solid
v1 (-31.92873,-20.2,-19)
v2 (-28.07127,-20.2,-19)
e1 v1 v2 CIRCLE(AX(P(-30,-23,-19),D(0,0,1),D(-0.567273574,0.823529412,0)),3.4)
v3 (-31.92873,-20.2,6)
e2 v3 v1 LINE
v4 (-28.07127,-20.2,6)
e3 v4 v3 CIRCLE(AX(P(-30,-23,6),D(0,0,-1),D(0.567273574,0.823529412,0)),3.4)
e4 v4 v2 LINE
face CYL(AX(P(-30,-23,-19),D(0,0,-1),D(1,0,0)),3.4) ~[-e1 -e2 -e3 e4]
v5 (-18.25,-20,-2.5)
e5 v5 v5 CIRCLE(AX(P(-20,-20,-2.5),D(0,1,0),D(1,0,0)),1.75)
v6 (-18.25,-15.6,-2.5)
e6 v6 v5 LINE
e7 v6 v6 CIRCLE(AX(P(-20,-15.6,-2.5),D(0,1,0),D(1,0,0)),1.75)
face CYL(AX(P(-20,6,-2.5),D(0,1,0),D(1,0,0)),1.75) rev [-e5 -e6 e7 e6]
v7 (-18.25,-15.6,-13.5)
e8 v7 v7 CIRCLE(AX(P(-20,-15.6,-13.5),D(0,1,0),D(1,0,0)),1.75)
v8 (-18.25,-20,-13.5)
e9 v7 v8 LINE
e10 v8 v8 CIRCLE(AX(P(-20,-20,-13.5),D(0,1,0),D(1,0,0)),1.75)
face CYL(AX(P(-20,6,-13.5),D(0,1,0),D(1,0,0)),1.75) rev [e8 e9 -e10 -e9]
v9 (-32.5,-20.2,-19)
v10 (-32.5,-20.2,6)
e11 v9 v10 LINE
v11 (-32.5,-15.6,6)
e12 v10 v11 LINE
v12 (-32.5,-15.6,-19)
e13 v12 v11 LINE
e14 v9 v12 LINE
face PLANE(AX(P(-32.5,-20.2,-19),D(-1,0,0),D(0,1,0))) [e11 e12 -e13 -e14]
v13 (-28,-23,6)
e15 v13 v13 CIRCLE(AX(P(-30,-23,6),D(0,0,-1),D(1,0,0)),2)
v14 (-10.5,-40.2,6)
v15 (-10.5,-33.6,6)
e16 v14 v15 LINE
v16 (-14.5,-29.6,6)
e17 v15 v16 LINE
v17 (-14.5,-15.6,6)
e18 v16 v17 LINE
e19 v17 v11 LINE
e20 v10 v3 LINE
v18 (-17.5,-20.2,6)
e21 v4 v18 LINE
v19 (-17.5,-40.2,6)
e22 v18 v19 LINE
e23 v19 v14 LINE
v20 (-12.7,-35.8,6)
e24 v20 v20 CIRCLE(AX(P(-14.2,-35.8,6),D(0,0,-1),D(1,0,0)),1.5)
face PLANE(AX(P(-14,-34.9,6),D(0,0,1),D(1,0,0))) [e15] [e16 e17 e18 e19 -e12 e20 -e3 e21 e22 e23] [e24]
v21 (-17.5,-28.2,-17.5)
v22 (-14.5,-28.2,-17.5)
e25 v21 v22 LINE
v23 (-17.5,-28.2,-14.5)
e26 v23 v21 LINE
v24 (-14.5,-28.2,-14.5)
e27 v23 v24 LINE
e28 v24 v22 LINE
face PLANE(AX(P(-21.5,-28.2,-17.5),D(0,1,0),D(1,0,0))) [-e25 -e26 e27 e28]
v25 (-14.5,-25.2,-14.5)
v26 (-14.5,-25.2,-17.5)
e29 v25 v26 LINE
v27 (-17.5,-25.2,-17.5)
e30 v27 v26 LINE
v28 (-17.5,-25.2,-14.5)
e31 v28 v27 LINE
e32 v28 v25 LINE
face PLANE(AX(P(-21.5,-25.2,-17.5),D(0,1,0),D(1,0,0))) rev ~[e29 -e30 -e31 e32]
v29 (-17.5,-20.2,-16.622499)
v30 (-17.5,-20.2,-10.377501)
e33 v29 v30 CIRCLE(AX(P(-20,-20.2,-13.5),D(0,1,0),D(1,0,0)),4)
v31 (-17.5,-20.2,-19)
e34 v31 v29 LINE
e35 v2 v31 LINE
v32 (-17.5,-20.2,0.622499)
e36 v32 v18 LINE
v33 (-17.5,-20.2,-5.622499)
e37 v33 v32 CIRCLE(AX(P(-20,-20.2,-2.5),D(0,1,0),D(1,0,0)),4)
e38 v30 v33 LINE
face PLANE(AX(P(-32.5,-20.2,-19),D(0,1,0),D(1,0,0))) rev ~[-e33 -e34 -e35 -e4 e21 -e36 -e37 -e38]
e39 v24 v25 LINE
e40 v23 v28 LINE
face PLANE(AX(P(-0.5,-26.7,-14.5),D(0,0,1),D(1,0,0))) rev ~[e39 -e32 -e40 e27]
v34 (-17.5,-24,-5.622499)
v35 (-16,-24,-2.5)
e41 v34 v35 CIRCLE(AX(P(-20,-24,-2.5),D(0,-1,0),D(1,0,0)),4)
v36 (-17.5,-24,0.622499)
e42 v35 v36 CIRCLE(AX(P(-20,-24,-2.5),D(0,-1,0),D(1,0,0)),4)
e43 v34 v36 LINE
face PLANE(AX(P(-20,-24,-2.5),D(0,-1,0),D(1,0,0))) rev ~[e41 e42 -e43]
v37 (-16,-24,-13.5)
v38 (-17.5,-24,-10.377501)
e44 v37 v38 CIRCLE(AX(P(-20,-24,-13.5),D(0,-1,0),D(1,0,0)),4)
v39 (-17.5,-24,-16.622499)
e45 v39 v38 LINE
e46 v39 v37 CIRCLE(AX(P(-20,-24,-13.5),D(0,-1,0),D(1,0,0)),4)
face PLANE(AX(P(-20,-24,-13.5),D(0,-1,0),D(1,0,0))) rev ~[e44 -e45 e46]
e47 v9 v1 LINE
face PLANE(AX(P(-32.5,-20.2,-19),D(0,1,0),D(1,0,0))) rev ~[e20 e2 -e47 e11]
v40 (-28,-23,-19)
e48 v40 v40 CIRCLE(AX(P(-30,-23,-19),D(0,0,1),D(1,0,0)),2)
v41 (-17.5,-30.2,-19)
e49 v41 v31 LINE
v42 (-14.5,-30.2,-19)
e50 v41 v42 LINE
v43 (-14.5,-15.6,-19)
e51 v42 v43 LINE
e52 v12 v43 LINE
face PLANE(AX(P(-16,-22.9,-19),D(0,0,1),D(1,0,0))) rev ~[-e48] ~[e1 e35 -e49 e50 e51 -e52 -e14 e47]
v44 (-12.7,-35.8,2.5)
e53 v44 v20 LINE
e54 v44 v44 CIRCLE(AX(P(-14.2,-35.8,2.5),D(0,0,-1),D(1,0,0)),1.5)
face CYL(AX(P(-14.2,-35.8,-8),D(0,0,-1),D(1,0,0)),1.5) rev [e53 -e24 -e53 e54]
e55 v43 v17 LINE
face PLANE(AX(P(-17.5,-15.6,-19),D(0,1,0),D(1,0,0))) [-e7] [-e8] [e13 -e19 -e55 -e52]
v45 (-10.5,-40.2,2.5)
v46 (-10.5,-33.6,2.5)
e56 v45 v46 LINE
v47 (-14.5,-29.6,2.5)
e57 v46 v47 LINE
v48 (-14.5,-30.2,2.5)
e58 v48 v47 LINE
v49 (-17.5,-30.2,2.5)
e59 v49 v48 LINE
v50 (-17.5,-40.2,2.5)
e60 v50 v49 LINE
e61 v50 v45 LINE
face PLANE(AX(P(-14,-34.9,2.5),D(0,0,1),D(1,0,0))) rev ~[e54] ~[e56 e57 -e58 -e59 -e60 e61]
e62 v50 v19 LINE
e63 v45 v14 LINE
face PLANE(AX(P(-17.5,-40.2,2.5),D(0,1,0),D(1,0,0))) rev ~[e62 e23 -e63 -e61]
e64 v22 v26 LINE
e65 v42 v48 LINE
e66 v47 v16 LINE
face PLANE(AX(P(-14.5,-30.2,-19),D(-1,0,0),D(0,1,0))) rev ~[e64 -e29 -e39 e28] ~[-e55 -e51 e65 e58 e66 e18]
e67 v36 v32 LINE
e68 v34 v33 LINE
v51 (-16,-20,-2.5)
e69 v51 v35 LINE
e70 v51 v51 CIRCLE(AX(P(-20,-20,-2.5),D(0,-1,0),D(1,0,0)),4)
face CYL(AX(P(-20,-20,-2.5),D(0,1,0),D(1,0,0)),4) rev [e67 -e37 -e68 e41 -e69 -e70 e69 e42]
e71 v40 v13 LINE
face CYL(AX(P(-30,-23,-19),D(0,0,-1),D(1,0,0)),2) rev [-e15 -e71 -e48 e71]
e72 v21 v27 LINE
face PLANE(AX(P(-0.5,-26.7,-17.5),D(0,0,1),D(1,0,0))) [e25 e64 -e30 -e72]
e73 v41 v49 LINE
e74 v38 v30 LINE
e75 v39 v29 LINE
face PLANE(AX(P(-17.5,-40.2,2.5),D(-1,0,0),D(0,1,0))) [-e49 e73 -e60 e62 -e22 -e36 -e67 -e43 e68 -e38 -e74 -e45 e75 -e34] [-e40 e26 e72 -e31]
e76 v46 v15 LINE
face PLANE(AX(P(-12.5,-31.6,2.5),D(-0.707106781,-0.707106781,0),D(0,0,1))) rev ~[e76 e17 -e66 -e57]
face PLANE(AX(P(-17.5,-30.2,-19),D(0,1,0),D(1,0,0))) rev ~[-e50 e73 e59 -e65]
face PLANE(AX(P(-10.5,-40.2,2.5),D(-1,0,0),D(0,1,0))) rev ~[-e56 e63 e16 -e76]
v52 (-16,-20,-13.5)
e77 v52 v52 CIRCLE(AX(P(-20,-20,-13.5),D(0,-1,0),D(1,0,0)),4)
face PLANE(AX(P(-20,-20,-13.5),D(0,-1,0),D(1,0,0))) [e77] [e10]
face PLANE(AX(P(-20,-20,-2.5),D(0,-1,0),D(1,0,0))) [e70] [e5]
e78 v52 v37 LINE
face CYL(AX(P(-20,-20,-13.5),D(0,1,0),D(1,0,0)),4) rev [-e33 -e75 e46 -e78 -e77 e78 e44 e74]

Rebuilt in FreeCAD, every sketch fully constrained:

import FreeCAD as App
import Part
import Sketcher
from FreeCAD import Vector
Q = App.Units.Quantity


def edges_at(feature, points):
    """Names of the edges that pass closest to the given points."""
    edges = feature.Shape.Edges
    near = lambda p: min(range(len(edges)), key=lambda i: edges[i].distToShape(Part.Vertex(*p))[0])
    return sorted({f"Edge{near(p) + 1}" for p in points})


def add_polygon(sketch, points):
    """Adds a closed chain of lines whose ends are joined by coincident constraints."""
    first, n = sketch.GeometryCount, len(points)
    for a, b in zip(points, points[1:] + points[:1]):
        sketch.addGeometry(Part.LineSegment(App.Vector(*a, 0), App.Vector(*b, 0)), False)
    for i in range(n):
        sketch.addConstraint(Sketcher.Constraint("Coincident", first + i, 2, first + (i + 1) % n, 1))

doc = App.newDocument("Part")
body = doc.addObject("PartDesign::Body", "Body")

# Sketch on XY plane
sketch1 = body.newObject("Sketcher::SketchObject", "Sketch")
sketch1.AttachmentSupport = (doc.getObject("XY_Plane"), [""])
sketch1.MapMode = "FlatFace"
sketch1.addGeometry(Part.Circle(Vector(0, 0, 0), Vector(0, 0, 1), 1.8), False)
sketch1.addConstraint(Sketcher.Constraint("Coincident", 0, 3, -1, 1))
sketch1.addConstraint(Sketcher.Constraint("Diameter", 0, Q("3.5 mm")))
pad1 = body.newObject("PartDesign::Pad", "Pad")
pad1.Profile = sketch1
pad1.Length = 44
body2 = doc.addObject("PartDesign::Body", "Body001")
doc.recompute()

body.Placement = App.Placement(Vector(0, 0, 0), App.Rotation(Vector(1, 0, 0), 90))
boolean = body2.newObject("PartDesign::Boolean", "Boolean")
boolean.Type = "Fuse"
boolean.addObjects([body])
body3 = doc.addObject("PartDesign::Body", "Body002")
doc.recompute()

body2.Placement = App.Placement(Vector(-20, 6, -13.5), App.Rotation(Vector(0, 0, 1), 0))
boolean2 = body3.newObject("PartDesign::Boolean", "Boolean001")
boolean2.Type = "Fuse"
boolean2.addObjects([body2])
body4 = doc.addObject("PartDesign::Body", "Body003")

# Sketch on XY plane
sketch2 = body4.newObject("Sketcher::SketchObject", "Sketch001")
sketch2.AttachmentSupport = (doc.getObject("XY_Plane003"), [""])
sketch2.MapMode = "FlatFace"
sketch2.AttachmentOffset = App.Placement(Vector(0, 0, -19), App.Rotation())
sketch2.addGeometry(Part.Circle(Vector(-30, -23, 0), Vector(0, 0, 1), 2), False)
sketch2.addConstraint(Sketcher.Constraint("Diameter", 0, Q("4 mm")))
sketch2.addConstraint(Sketcher.Constraint("DistanceX", 0, 3, -1, 1, Q("30 mm")))
sketch2.addConstraint(Sketcher.Constraint("DistanceY", 0, 3, -1, 1, Q("23 mm")))
pad2 = body4.newObject("PartDesign::Pad", "Pad001")
pad2.Profile = sketch2
pad2.Length = 42
body5 = doc.addObject("PartDesign::Body", "Body004")

# Sketch on XY plane
sketch3 = body5.newObject("Sketcher::SketchObject", "Sketch002")
sketch3.AttachmentSupport = (doc.getObject("XY_Plane004"), [""])
sketch3.MapMode = "FlatFace"
sketch3.AttachmentOffset = App.Placement(Vector(0, 0, -8), App.Rotation())
sketch3.addGeometry(Part.Circle(Vector(-14.2, -35.8, 0), Vector(0, 0, 1), 1.5), False)
sketch3.addConstraint(Sketcher.Constraint("Diameter", 0, Q("3 mm")))
sketch3.addConstraint(Sketcher.Constraint("DistanceX", 0, 3, -1, 1, Q("14.2 mm")))
sketch3.addConstraint(Sketcher.Constraint("DistanceY", 0, 3, -1, 1, Q("35.8 mm")))
pad3 = body5.newObject("PartDesign::Pad", "Pad002")
pad3.Profile = sketch3
pad3.Length = 42
body6 = doc.addObject("PartDesign::Body", "Body005")

# Sketch on XY plane
sketch4 = body6.newObject("Sketcher::SketchObject", "Sketch003")
sketch4.AttachmentSupport = (doc.getObject("XY_Plane005"), [""])
sketch4.MapMode = "FlatFace"
sketch4.addGeometry(Part.Circle(Vector(0, 0, 0), Vector(0, 0, 1), 4), False)
sketch4.addConstraint(Sketcher.Constraint("Coincident", 0, 3, -1, 1))
sketch4.addConstraint(Sketcher.Constraint("Diameter", 0, Q("8 mm")))
pad4 = body6.newObject("PartDesign::Pad", "Pad003")
pad4.Profile = sketch4
pad4.Length = 4
body7 = doc.addObject("PartDesign::Body", "Body006")
doc.recompute()

body6.Placement = App.Placement(Vector(0, 0, 0), App.Rotation(Vector(1, 0, 0), 90))
boolean3 = body7.newObject("PartDesign::Boolean", "Boolean002")
boolean3.Type = "Fuse"
boolean3.addObjects([body6])
body8 = doc.addObject("PartDesign::Body", "Body007")
doc.recompute()

body7.Placement = App.Placement(Vector(-20, -20, -2.5), App.Rotation(Vector(0, 0, 1), 0))
boolean4 = body8.newObject("PartDesign::Boolean", "Boolean003")
boolean4.Type = "Fuse"
boolean4.addObjects([body7])
body9 = doc.addObject("PartDesign::Body", "Body008")

# Sketch on XY plane
sketch5 = body9.newObject("Sketcher::SketchObject", "Sketch004")
sketch5.AttachmentSupport = (doc.getObject("XY_Plane008"), [""])
sketch5.MapMode = "FlatFace"
sketch5.addGeometry(Part.Circle(Vector(0, 0, 0), Vector(0, 0, 1), 4), False)
sketch5.addConstraint(Sketcher.Constraint("Coincident", 0, 3, -1, 1))
sketch5.addConstraint(Sketcher.Constraint("Diameter", 0, Q("8 mm")))
pad5 = body9.newObject("PartDesign::Pad", "Pad004")
pad5.Profile = sketch5
pad5.Length = 4
body10 = doc.addObject("PartDesign::Body", "Body009")
doc.recompute()

body9.Placement = App.Placement(Vector(0, 0, 0), App.Rotation(Vector(1, 0, 0), 90))
boolean5 = body10.newObject("PartDesign::Boolean", "Boolean004")
boolean5.Type = "Fuse"
boolean5.addObjects([body9])
body11 = doc.addObject("PartDesign::Body", "Body010")
doc.recompute()

body10.Placement = App.Placement(Vector(-20, -20, -13.5), App.Rotation(Vector(0, 0, 1), 0))
boolean6 = body11.newObject("PartDesign::Boolean", "Boolean005")
boolean6.Type = "Fuse"
boolean6.addObjects([body10])
body12 = doc.addObject("PartDesign::Body", "Body011")

# Sketch on XY plane
sketch6 = body12.newObject("Sketcher::SketchObject", "Sketch005")
sketch6.AttachmentSupport = (doc.getObject("XY_Plane011"), [""])
sketch6.MapMode = "FlatFace"
sketch6.AttachmentOffset = App.Placement(Vector(0, 0, -17.5), App.Rotation())
add_polygon(sketch6, [(-21.5, -25.2), (-21.5, -28.2), (20.5, -28.2), (20.5, -25.2)])  # lines 0-3
sketch6.addConstraint(Sketcher.Constraint("Vertical", 0))
sketch6.addConstraint(Sketcher.Constraint("Horizontal", 1))
sketch6.addConstraint(Sketcher.Constraint("Vertical", 2))
sketch6.addConstraint(Sketcher.Constraint("Horizontal", 3))
sketch6.addConstraint(Sketcher.Constraint("DistanceX", 1, 1, 1, 2, Q("42 mm")))
sketch6.addConstraint(Sketcher.Constraint("DistanceY", 0, 2, 0, 1, Q("3 mm")))
sketch6.addConstraint(Sketcher.Constraint("DistanceX", 0, 2, -1, 1, Q("21.5 mm")))
sketch6.addConstraint(Sketcher.Constraint("DistanceY", 0, 2, -1, 1, Q("28.2 mm")))
pad6 = body12.newObject("PartDesign::Pad", "Pad005")
pad6.Profile = sketch6
pad6.Length = 3
body13 = doc.addObject("PartDesign::Body", "Body012")

# Sketch on XY plane
sketch7 = body13.newObject("Sketcher::SketchObject", "Sketch006")
sketch7.AttachmentSupport = (doc.getObject("XY_Plane012"), [""])
sketch7.MapMode = "FlatFace"
sketch7.addGeometry(Part.Circle(Vector(0, 0, 0), Vector(0, 0, 1), 1.8), False)
sketch7.addConstraint(Sketcher.Constraint("Coincident", 0, 3, -1, 1))
sketch7.addConstraint(Sketcher.Constraint("Diameter", 0, Q("3.5 mm")))
pad7 = body13.newObject("PartDesign::Pad", "Pad006")
pad7.Profile = sketch7
pad7.Length = 44
body14 = doc.addObject("PartDesign::Body", "Body013")
doc.recompute()

body13.Placement = App.Placement(Vector(0, 0, 0), App.Rotation(Vector(1, 0, 0), 90))
boolean7 = body14.newObject("PartDesign::Boolean", "Boolean006")
boolean7.Type = "Fuse"
boolean7.addObjects([body13])
body15 = doc.addObject("PartDesign::Body", "Body014")
body15.AllowCompound = True
doc.recompute()

body14.Placement = App.Placement(Vector(-20, 6, -2.5), App.Rotation(Vector(0, 0, 1), 0))
boolean8 = body15.newObject("PartDesign::Boolean", "Boolean007")
boolean8.Type = "Fuse"
boolean8.addObjects([body14])
doc.recompute()

boolean9 = body15.newObject("PartDesign::Boolean", "Boolean008")
boolean9.Type = "Fuse"
boolean9.addObjects([body3])
doc.recompute()

boolean10 = body15.newObject("PartDesign::Boolean", "Boolean009")
boolean10.Type = "Fuse"
boolean10.addObjects([body4])
doc.recompute()

boolean11 = body15.newObject("PartDesign::Boolean", "Boolean010")
boolean11.Type = "Fuse"
boolean11.addObjects([body5])
doc.recompute()

boolean12 = body15.newObject("PartDesign::Boolean", "Boolean011")
boolean12.Type = "Fuse"
boolean12.addObjects([body8])
doc.recompute()

boolean13 = body15.newObject("PartDesign::Boolean", "Boolean012")
boolean13.Type = "Fuse"
boolean13.addObjects([body11])
doc.recompute()

boolean14 = body15.newObject("PartDesign::Boolean", "Boolean013")
boolean14.Type = "Fuse"
boolean14.addObjects([body12])
body16 = doc.addObject("PartDesign::Body", "Body015")

# Sketch on XY plane
sketch8 = body16.newObject("Sketcher::SketchObject", "Sketch007")
sketch8.AttachmentSupport = (doc.getObject("XY_Plane015"), [""])
sketch8.MapMode = "FlatFace"
sketch8.AttachmentOffset = App.Placement(Vector(0, 0, -19), App.Rotation())
sketch8.addGeometry(Part.Circle(Vector(-30, -23, 0), Vector(0, 0, 1), 3.4), False)
sketch8.addConstraint(Sketcher.Constraint("Diameter", 0, Q("6.8 mm")))
sketch8.addConstraint(Sketcher.Constraint("DistanceX", 0, 3, -1, 1, Q("30 mm")))
sketch8.addConstraint(Sketcher.Constraint("DistanceY", 0, 3, -1, 1, Q("23 mm")))
pad8 = body16.newObject("PartDesign::Pad", "Pad007")
pad8.Profile = sketch8
pad8.Length = 25
body17 = doc.addObject("PartDesign::Body", "Body016")

# Sketch on XY plane
sketch9 = body17.newObject("Sketcher::SketchObject", "Sketch008")
sketch9.AttachmentSupport = (doc.getObject("XY_Plane016"), [""])
sketch9.MapMode = "FlatFace"
sketch9.AttachmentOffset = App.Placement(Vector(0, 0, -19), App.Rotation())
add_polygon(sketch9, [(-17.5, -15.6), (-17.5, -30.2), (-14.5, -30.2), (-14.5, -15.6)])  # lines 0-3
sketch9.addConstraint(Sketcher.Constraint("Vertical", 0))
sketch9.addConstraint(Sketcher.Constraint("Horizontal", 1))
sketch9.addConstraint(Sketcher.Constraint("Vertical", 2))
sketch9.addConstraint(Sketcher.Constraint("Horizontal", 3))
sketch9.addConstraint(Sketcher.Constraint("DistanceX", 1, 1, 1, 2, Q("3 mm")))
sketch9.addConstraint(Sketcher.Constraint("DistanceY", 0, 2, 0, 1, Q("14.6 mm")))
sketch9.addConstraint(Sketcher.Constraint("DistanceX", 0, 2, -1, 1, Q("17.5 mm")))
sketch9.addConstraint(Sketcher.Constraint("DistanceY", 0, 2, -1, 1, Q("30.2 mm")))
pad9 = body17.newObject("PartDesign::Pad", "Pad008")
pad9.Profile = sketch9
pad9.Length = 25
body18 = doc.addObject("PartDesign::Body", "Body017")

# Sketch on XY plane
sketch10 = body18.newObject("Sketcher::SketchObject", "Sketch009")
sketch10.AttachmentSupport = (doc.getObject("XY_Plane017"), [""])
sketch10.MapMode = "FlatFace"
sketch10.AttachmentOffset = App.Placement(Vector(0, 0, 2.5), App.Rotation())
add_polygon(sketch10, [(-18, -30), (-18, -40), (-10, -40), (-10, -30)])  # lines 0-3
sketch10.addConstraint(Sketcher.Constraint("Vertical", 0))
sketch10.addConstraint(Sketcher.Constraint("Horizontal", 1))
sketch10.addConstraint(Sketcher.Constraint("Vertical", 2))
sketch10.addConstraint(Sketcher.Constraint("Horizontal", 3))
sketch10.addConstraint(Sketcher.Constraint("DistanceX", 1, 1, 1, 2, Q("7 mm")))
sketch10.addConstraint(Sketcher.Constraint("DistanceY", 0, 2, 0, 1, Q("10.6 mm")))
sketch10.addConstraint(Sketcher.Constraint("DistanceX", 0, 2, -1, 1, Q("17.5 mm")))
sketch10.addConstraint(Sketcher.Constraint("DistanceY", 0, 2, -1, 1, Q("40.2 mm")))
pad10 = body18.newObject("PartDesign::Pad", "Pad009")
pad10.Profile = sketch10
pad10.Length = 3.5
doc.recompute()

chamfer = body18.newObject("PartDesign::Chamfer", "Chamfer")
chamfer.Base = (pad10, edges_at(pad10, [(-10.5, -29.6, 4.25)]))
chamfer.Size = 4
body19 = doc.addObject("PartDesign::Body", "Body018")

# Sketch on XY plane
sketch11 = body19.newObject("Sketcher::SketchObject", "Sketch010")
sketch11.AttachmentSupport = (doc.getObject("XY_Plane018"), [""])
sketch11.MapMode = "FlatFace"
sketch11.AttachmentOffset = App.Placement(Vector(0, 0, -19), App.Rotation())
add_polygon(sketch11, [(-32.5, -15.6), (-32.5, -20.2), (-17.5, -20.2), (-17.5, -15.6)])  # lines 0-3
sketch11.addConstraint(Sketcher.Constraint("Vertical", 0))
sketch11.addConstraint(Sketcher.Constraint("Horizontal", 1))
sketch11.addConstraint(Sketcher.Constraint("Vertical", 2))
sketch11.addConstraint(Sketcher.Constraint("Horizontal", 3))
sketch11.addConstraint(Sketcher.Constraint("DistanceX", 1, 1, 1, 2, Q("15 mm")))
sketch11.addConstraint(Sketcher.Constraint("DistanceY", 0, 2, 0, 1, Q("4.6 mm")))
sketch11.addConstraint(Sketcher.Constraint("DistanceX", 0, 2, -1, 1, Q("32.5 mm")))
sketch11.addConstraint(Sketcher.Constraint("DistanceY", 0, 2, -1, 1, Q("20.2 mm")))
pad11 = body19.newObject("PartDesign::Pad", "Pad010")
pad11.Profile = sketch11
pad11.Length = 25
doc.recompute()

boolean15 = body19.newObject("PartDesign::Boolean", "Boolean014")
boolean15.Type = "Fuse"
boolean15.addObjects([body16])
doc.recompute()

boolean16 = body19.newObject("PartDesign::Boolean", "Boolean015")
boolean16.Type = "Fuse"
boolean16.addObjects([body17])
doc.recompute()

boolean17 = body19.newObject("PartDesign::Boolean", "Boolean016")
boolean17.Type = "Fuse"
boolean17.addObjects([body18])
doc.recompute()

boolean18 = body19.newObject("PartDesign::Boolean", "Boolean017")
boolean18.Type = "Cut"
boolean18.addObjects([body15])

doc.recompute()
